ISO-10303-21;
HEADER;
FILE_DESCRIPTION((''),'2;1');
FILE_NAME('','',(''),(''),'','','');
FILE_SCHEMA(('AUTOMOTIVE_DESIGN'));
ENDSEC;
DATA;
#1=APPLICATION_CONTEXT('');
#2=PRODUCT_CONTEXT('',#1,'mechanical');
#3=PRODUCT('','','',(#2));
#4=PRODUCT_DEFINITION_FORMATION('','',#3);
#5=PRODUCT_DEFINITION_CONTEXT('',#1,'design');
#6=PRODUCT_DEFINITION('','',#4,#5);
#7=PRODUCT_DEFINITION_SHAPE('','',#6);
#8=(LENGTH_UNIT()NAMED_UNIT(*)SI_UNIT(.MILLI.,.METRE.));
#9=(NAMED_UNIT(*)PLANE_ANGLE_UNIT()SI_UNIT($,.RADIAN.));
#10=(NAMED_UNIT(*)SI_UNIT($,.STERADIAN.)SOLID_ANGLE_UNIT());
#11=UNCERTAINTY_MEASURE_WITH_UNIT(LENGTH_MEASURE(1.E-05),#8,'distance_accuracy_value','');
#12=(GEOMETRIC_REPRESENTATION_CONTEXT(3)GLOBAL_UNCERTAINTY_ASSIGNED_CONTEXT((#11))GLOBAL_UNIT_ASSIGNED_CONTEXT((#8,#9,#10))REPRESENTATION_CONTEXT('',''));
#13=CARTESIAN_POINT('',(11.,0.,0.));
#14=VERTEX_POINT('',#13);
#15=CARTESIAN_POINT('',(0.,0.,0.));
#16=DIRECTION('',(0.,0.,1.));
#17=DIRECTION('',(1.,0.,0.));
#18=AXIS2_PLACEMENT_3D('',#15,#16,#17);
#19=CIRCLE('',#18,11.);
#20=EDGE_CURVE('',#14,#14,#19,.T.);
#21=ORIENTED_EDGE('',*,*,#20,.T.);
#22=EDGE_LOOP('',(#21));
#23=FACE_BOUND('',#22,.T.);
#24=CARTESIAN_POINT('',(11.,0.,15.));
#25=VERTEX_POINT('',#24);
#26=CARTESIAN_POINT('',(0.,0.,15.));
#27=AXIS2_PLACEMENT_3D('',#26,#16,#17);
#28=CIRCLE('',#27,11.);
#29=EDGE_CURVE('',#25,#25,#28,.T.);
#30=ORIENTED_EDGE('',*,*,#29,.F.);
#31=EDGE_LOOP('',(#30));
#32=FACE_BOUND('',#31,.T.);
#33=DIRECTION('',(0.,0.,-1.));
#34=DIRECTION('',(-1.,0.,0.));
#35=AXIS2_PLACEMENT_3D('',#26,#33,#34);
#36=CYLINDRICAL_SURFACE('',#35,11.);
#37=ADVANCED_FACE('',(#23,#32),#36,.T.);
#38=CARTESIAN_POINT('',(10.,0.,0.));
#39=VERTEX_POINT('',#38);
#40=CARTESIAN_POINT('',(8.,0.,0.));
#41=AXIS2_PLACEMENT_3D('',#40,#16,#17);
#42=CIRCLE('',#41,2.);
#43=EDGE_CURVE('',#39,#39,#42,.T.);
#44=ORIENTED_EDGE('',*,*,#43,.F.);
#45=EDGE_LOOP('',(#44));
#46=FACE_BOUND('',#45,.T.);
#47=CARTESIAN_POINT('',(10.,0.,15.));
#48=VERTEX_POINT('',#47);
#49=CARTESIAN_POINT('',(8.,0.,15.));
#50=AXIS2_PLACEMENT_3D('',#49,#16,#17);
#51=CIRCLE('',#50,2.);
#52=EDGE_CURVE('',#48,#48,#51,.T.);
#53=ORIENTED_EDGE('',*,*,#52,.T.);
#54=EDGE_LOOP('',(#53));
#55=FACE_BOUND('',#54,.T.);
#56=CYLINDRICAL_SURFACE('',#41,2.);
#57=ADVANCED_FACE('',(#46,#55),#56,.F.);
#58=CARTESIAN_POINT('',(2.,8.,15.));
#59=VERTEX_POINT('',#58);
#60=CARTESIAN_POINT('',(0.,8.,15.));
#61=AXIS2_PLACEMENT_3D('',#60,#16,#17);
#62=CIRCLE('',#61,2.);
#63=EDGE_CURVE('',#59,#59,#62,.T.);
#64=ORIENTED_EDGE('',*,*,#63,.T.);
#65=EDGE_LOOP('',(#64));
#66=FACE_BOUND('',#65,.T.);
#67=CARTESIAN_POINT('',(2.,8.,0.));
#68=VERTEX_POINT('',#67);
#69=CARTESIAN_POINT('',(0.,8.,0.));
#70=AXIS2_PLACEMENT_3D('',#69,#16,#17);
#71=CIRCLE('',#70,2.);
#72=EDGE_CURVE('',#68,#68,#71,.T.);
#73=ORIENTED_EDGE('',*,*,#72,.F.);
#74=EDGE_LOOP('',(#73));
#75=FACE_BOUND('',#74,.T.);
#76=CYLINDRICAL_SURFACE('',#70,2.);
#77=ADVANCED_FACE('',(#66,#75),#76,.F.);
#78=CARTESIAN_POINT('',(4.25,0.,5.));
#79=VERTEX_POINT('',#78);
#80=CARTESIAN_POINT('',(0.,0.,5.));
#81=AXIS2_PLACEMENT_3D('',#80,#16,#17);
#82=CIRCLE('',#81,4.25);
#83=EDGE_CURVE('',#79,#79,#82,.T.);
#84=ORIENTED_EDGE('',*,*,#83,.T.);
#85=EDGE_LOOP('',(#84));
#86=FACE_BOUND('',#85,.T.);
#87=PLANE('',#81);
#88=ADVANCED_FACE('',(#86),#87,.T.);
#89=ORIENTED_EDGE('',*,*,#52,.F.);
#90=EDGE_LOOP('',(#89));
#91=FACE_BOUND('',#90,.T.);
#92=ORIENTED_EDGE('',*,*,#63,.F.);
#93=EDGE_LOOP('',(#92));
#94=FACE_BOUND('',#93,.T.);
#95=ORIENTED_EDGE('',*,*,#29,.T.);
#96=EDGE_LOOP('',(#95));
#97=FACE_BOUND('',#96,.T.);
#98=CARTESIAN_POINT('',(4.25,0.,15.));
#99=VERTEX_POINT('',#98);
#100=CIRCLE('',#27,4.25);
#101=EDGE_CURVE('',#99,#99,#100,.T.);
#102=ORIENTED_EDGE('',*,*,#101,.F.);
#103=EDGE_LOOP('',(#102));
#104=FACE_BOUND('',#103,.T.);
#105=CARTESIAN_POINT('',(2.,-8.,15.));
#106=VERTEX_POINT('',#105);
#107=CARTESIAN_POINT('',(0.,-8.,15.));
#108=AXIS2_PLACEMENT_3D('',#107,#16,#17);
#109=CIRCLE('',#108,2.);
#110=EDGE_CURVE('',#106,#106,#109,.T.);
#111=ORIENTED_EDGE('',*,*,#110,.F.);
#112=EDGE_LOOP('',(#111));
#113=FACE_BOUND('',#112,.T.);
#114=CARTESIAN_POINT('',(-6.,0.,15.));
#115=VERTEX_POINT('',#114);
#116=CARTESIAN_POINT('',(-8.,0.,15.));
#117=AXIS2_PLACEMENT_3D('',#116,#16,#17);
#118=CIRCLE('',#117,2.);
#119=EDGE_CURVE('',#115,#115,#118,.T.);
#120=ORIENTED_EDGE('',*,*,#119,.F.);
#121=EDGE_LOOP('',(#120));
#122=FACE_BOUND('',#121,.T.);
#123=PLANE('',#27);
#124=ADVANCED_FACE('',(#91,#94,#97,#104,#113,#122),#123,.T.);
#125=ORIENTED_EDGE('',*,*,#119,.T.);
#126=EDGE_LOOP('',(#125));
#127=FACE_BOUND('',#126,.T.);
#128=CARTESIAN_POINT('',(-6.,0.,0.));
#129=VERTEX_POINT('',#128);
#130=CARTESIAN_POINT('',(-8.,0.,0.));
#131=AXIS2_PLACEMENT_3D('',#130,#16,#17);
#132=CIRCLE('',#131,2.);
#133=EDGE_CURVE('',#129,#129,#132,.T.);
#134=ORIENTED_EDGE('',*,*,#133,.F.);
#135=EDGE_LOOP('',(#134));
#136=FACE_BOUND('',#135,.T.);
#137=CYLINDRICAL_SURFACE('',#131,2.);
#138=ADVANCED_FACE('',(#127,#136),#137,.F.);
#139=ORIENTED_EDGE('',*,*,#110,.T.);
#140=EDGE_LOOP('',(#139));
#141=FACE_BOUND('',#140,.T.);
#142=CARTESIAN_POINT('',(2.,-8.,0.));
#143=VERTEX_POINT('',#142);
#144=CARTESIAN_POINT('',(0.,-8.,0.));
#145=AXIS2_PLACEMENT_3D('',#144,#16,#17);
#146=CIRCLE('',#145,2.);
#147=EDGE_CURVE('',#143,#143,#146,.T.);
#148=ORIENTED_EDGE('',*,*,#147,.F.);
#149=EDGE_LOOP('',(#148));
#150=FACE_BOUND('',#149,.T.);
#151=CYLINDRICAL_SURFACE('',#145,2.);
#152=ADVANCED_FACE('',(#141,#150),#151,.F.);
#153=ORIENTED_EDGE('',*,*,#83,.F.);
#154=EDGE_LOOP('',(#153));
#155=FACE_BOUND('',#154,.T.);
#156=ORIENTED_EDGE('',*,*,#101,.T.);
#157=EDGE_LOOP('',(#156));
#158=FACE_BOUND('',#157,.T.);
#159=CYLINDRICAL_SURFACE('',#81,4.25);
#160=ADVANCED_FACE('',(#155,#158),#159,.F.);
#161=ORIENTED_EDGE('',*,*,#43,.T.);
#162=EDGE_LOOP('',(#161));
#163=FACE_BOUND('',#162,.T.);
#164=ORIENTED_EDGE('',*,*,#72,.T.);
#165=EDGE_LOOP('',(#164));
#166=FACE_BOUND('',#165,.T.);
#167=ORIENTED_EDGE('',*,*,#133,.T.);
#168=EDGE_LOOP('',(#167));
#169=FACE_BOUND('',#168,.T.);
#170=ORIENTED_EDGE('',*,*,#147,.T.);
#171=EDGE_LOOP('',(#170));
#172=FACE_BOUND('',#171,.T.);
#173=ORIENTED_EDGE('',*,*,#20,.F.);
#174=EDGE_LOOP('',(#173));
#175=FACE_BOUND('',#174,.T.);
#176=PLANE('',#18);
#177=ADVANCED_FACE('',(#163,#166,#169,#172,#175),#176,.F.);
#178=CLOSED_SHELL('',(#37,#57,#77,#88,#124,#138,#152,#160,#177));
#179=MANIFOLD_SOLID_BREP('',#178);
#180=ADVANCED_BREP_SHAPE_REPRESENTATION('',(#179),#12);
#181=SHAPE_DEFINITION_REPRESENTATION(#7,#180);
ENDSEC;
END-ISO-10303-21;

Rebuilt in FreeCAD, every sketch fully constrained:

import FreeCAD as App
import Part
import Sketcher

doc = App.newDocument("Part")
body = doc.addObject("PartDesign::Body", "Body")

# Sketch on XY plane
sketch1 = doc.addObject("Sketcher::SketchObject", "Sketch")
body.addObject(sketch1)
sketch1.AttachmentSupport = (doc.XY_Plane, [""])
sketch1.MapMode = "FlatFace"
sketch1.addGeometry(Part.Circle(App.Vector(0, 0, 0), App.Vector(0, 0, 1), 11), False)
sketch1.addConstraint(Sketcher.Constraint("Coincident", 0, 3, -1, 1))
sketch1.addConstraint(Sketcher.Constraint("Diameter", 0, 22.0))
pad1 = doc.addObject("PartDesign::Pad", "Pad")
body.addObject(pad1)
pad1.Profile = sketch1
pad1.Length = 15

# Sketch on XY plane
sketch2 = doc.addObject("Sketcher::SketchObject", "Sketch001")
body.addObject(sketch2)
sketch2.AttachmentSupport = (doc.XY_Plane, [""])
sketch2.MapMode = "FlatFace"
sketch2.AttachmentOffset = App.Placement(App.Vector(0, 0, 15), App.Rotation())
sketch2.addGeometry(Part.Circle(App.Vector(-8, 0, 0), App.Vector(0, 0, 1), 2), False)
sketch2.addGeometry(Part.Circle(App.Vector(0, 8, 0), App.Vector(0, 0, 1), 2), False)
sketch2.addGeometry(Part.Circle(App.Vector(8, 0, 0), App.Vector(0, 0, 1), 2), False)
sketch2.addGeometry(Part.Circle(App.Vector(0, -8, 0), App.Vector(0, 0, 1), 2), False)
sketch2.addConstraint(Sketcher.Constraint("Equal", 0, 1))
sketch2.addConstraint(Sketcher.Constraint("Equal", 1, 2))
sketch2.addConstraint(Sketcher.Constraint("Equal", 2, 3))
sketch2.addConstraint(Sketcher.Constraint("Symmetric", 0, 3, 2, 3, -1, 1))
sketch2.addConstraint(Sketcher.Constraint("Symmetric", 1, 3, 3, 3, -1, 1))
sketch2.addConstraint(Sketcher.Constraint("PointOnObject", 0, 3, -1))
sketch2.addConstraint(Sketcher.Constraint("PointOnObject", 1, 3, -2))
sketch2.addConstraint(Sketcher.Constraint("Diameter", 0, 4.0))
sketch2.addConstraint(Sketcher.Constraint("DistanceX", 0, 3, -1, 1, 8.0))
sketch2.addConstraint(Sketcher.Constraint("DistanceY", -1, 1, 1, 3, 8.0))
pocket1 = doc.addObject("PartDesign::Pocket", "Pocket")
body.addObject(pocket1)
pocket1.Profile = sketch2
pocket1.Length = 15

# Sketch on XY plane
sketch3 = doc.addObject("Sketcher::SketchObject", "Sketch002")
body.addObject(sketch3)
sketch3.AttachmentSupport = (doc.XY_Plane, [""])
sketch3.MapMode = "FlatFace"
sketch3.AttachmentOffset = App.Placement(App.Vector(0, 0, 15), App.Rotation())
sketch3.addGeometry(Part.Circle(App.Vector(0, 0, 0), App.Vector(0, 0, 1), 4.2), False)
sketch3.addConstraint(Sketcher.Constraint("Coincident", 0, 3, -1, 1))
sketch3.addConstraint(Sketcher.Constraint("Diameter", 0, 8.5))
pocket2 = doc.addObject("PartDesign::Pocket", "Pocket001")
body.addObject(pocket2)
pocket2.Profile = sketch3
pocket2.Length = 10

doc.recompute()
